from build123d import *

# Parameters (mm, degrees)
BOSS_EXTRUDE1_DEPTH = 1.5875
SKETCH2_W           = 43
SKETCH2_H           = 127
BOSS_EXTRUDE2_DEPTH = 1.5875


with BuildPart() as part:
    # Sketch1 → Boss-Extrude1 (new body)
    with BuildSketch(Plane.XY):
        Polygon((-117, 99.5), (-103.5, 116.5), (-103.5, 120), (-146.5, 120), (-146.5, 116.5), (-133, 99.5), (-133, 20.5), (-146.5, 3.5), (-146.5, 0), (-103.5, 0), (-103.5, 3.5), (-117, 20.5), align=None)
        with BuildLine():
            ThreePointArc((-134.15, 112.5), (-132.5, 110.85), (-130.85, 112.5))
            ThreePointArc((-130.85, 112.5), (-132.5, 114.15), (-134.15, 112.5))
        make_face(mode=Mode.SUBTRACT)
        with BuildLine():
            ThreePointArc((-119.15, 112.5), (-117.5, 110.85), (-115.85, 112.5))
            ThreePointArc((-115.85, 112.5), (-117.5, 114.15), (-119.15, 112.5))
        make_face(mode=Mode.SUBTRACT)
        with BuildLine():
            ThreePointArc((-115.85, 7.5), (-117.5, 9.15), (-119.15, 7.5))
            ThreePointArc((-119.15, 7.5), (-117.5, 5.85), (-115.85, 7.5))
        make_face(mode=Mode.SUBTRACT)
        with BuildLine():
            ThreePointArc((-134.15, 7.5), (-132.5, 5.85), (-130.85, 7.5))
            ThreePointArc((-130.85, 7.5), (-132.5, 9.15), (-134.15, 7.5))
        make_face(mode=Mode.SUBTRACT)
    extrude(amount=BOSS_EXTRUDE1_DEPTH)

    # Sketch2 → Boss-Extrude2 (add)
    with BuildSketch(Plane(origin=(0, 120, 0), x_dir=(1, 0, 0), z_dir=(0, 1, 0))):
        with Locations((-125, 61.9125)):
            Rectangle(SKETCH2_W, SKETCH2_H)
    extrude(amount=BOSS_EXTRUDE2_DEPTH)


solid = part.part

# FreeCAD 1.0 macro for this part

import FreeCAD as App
import Part
import Sketcher
from FreeCAD import Vector
Q = App.Units.Quantity

doc = App.newDocument("Part")
body = doc.addObject("PartDesign::Body", "Body")

# Sketch on XY plane
sketch1 = body.newObject("Sketcher::SketchObject", "Sketch")
sketch1.AttachmentSupport = (doc.getObject("XY_Plane"), [""])
sketch1.MapMode = "FlatFace"
sketch1.addGeometry([
    Part.LineSegment(Vector(-117, 99.5, 0), Vector(-103.5, 116.5, 0)),  # 0
    Part.LineSegment(Vector(-103.5, 116.5, 0), Vector(-103.5, 120, 0)),  # 1
    Part.LineSegment(Vector(-103.5, 120, 0), Vector(-146.5, 120, 0)),  # 2
    Part.LineSegment(Vector(-146.5, 120, 0), Vector(-146.5, 116.5, 0)),  # 3
    Part.LineSegment(Vector(-146.5, 116.5, 0), Vector(-133, 99.5, 0)),  # 4
    Part.LineSegment(Vector(-133, 99.5, 0), Vector(-133, 20.5, 0)),  # 5
    Part.LineSegment(Vector(-133, 20.5, 0), Vector(-146.5, 3.5, 0)),  # 6
    Part.LineSegment(Vector(-146.5, 3.5, 0), Vector(-146.5, 0, 0)),  # 7
    Part.LineSegment(Vector(-146.5, 0, 0), Vector(-103.5, 0, 0)),  # 8
    Part.LineSegment(Vector(-103.5, 0, 0), Vector(-103.5, 3.5, 0)),  # 9
    Part.LineSegment(Vector(-103.5, 3.5, 0), Vector(-117, 20.5, 0)),  # 10
    Part.LineSegment(Vector(-117, 20.5, 0), Vector(-117, 99.5, 0)),  # 11
    Part.Circle(Vector(-132.5, 7.5, 0), Vector(0, 0, 1), 1.65),  # 12
    Part.Circle(Vector(-117.5, 7.5, 0), Vector(0, 0, 1), 1.65),  # 13
    Part.Circle(Vector(-132.5, 112.5, 0), Vector(0, 0, 1), 1.65),  # 14
    Part.Circle(Vector(-117.5, 112.5, 0), Vector(0, 0, 1), 1.65),  # 15
], False)
sketch1.addConstraint([
    Sketcher.Constraint("Coincident", 0, 2, 1, 1),
    Sketcher.Constraint("Coincident", 1, 2, 2, 1),
    Sketcher.Constraint("Coincident", 2, 2, 3, 1),
    Sketcher.Constraint("Coincident", 3, 2, 4, 1),
    Sketcher.Constraint("Coincident", 4, 2, 5, 1),
    Sketcher.Constraint("Coincident", 5, 2, 6, 1),
    Sketcher.Constraint("Coincident", 6, 2, 7, 1),
    Sketcher.Constraint("Coincident", 7, 2, 8, 1),
    Sketcher.Constraint("Coincident", 8, 2, 9, 1),
    Sketcher.Constraint("Coincident", 9, 2, 10, 1),
    Sketcher.Constraint("Coincident", 10, 2, 11, 1),
    Sketcher.Constraint("Coincident", 11, 2, 0, 1),
    Sketcher.Constraint("Vertical", 1),
    Sketcher.Constraint("Horizontal", 2),
    Sketcher.Constraint("Vertical", 3),
    Sketcher.Constraint("Vertical", 5),
    Sketcher.Constraint("Vertical", 7),
    Sketcher.Constraint("Horizontal", 8),
    Sketcher.Constraint("Vertical", 9),
    Sketcher.Constraint("Vertical", 11),
    Sketcher.Constraint("Equal", 12, 13),
    Sketcher.Constraint("Equal", 13, 14),
    Sketcher.Constraint("Equal", 14, 15),
    Sketcher.Constraint("PointOnObject", 7, 2, -1),
    Sketcher.Constraint("Parallel", 0, 6),
    Sketcher.Constraint("Parallel", 4, 10),
    Sketcher.Constraint("Horizontal", 12, 3, 13, 3),
    Sketcher.Constraint("Horizontal", 14, 3, 15, 3),
    Sketcher.Constraint("Horizontal", 0, 2, 3, 2),
    Sketcher.Constraint("Horizontal", 6, 2, 9, 2),
    Sketcher.Constraint("Horizontal", 5, 2, 10, 2),
    Sketcher.Constraint("Horizontal", 4, 2, 11, 2),
    Sketcher.Constraint("Vertical", 12, 3, 14, 3),
    Sketcher.Constraint("Vertical", 13, 3, 15, 3),
    Sketcher.Constraint("Vertical", 3, 2, 6, 2),
    Sketcher.Constraint("Vertical", 1, 2, 8, 2),
    Sketcher.Constraint("Equal", 3, 7),
    Sketcher.Constraint("Diameter", 12, Q("3.3 mm")),
    Sketcher.Constraint("DistanceX", 2, 2, 2, 1, Q("43 mm")),
    Sketcher.Constraint("DistanceY", 5, 2, 5, 1, Q("79 mm")),
    Sketcher.Constraint("DistanceY", 1, 1, 1, 2, Q("3.5 mm")),
    Sketcher.Constraint("DistanceY", -1, 1, 1, 2, Q("120 mm")),
    Sketcher.Constraint("DistanceX", 4, 2, -1, 1, Q("133 mm")),
    Sketcher.Constraint("DistanceX", 10, 2, -1, 1, Q("117 mm")),
    Sketcher.Constraint("DistanceX", 12, 3, 13, 3, Q("15 mm")),
    Sketcher.Constraint("DistanceY", 12, 3, 14, 3, Q("105 mm")),
    Sketcher.Constraint("DistanceX", 15, 3, 0, 2, Q("14 mm")),
    Sketcher.Constraint("DistanceY", 15, 3, 0, 2, Q("4 mm")),
])
pad1 = body.newObject("PartDesign::Pad", "Pad")
pad1.Profile = sketch1
pad1.Length = 1.5875

# Sketch on XZ plane
sketch2 = body.newObject("Sketcher::SketchObject", "Sketch001")
sketch2.AttachmentSupport = (doc.getObject("XZ_Plane"), [""])
sketch2.MapMode = "FlatFace"
sketch2.AttachmentOffset = App.Placement(Vector(0, 0, -120), App.Rotation())
sketch2.addGeometry([
    Part.LineSegment(Vector(-146.5, -125.4125, 0), Vector(-146.5, 1.5875, 0)),
    Part.LineSegment(Vector(-146.5, 1.5875, 0), Vector(-103.5, 1.5875, 0)),
    Part.LineSegment(Vector(-103.5, 1.5875, 0), Vector(-103.5, -125.4125, 0)),
    Part.LineSegment(Vector(-103.5, -125.4125, 0), Vector(-146.5, -125.4125, 0)),
], False)
sketch2.addConstraint([
    Sketcher.Constraint("Coincident", 0, 2, 1, 1),
    Sketcher.Constraint("Coincident", 1, 2, 2, 1),
    Sketcher.Constraint("Coincident", 2, 2, 3, 1),
    Sketcher.Constraint("Coincident", 3, 2, 0, 1),
    Sketcher.Constraint("Vertical", 0),
    Sketcher.Constraint("Horizontal", 1),
    Sketcher.Constraint("Vertical", 2),
    Sketcher.Constraint("Horizontal", 3),
    Sketcher.Constraint("DistanceX", 1, 1, 1, 2, Q("43 mm")),
    Sketcher.Constraint("DistanceY", 0, 1, 0, 2, Q("127 mm")),
    Sketcher.Constraint("DistanceX", 0, 2, -1, 1, Q("146.5 mm")),
    Sketcher.Constraint("DistanceY", -1, 1, 0, 2, Q("1.5875 mm")),
])
pad2 = body.newObject("PartDesign::Pad", "Pad001")
pad2.Profile = sketch2
pad2.Length = 1.5875
pad2.Reversed = True

doc.recompute()
